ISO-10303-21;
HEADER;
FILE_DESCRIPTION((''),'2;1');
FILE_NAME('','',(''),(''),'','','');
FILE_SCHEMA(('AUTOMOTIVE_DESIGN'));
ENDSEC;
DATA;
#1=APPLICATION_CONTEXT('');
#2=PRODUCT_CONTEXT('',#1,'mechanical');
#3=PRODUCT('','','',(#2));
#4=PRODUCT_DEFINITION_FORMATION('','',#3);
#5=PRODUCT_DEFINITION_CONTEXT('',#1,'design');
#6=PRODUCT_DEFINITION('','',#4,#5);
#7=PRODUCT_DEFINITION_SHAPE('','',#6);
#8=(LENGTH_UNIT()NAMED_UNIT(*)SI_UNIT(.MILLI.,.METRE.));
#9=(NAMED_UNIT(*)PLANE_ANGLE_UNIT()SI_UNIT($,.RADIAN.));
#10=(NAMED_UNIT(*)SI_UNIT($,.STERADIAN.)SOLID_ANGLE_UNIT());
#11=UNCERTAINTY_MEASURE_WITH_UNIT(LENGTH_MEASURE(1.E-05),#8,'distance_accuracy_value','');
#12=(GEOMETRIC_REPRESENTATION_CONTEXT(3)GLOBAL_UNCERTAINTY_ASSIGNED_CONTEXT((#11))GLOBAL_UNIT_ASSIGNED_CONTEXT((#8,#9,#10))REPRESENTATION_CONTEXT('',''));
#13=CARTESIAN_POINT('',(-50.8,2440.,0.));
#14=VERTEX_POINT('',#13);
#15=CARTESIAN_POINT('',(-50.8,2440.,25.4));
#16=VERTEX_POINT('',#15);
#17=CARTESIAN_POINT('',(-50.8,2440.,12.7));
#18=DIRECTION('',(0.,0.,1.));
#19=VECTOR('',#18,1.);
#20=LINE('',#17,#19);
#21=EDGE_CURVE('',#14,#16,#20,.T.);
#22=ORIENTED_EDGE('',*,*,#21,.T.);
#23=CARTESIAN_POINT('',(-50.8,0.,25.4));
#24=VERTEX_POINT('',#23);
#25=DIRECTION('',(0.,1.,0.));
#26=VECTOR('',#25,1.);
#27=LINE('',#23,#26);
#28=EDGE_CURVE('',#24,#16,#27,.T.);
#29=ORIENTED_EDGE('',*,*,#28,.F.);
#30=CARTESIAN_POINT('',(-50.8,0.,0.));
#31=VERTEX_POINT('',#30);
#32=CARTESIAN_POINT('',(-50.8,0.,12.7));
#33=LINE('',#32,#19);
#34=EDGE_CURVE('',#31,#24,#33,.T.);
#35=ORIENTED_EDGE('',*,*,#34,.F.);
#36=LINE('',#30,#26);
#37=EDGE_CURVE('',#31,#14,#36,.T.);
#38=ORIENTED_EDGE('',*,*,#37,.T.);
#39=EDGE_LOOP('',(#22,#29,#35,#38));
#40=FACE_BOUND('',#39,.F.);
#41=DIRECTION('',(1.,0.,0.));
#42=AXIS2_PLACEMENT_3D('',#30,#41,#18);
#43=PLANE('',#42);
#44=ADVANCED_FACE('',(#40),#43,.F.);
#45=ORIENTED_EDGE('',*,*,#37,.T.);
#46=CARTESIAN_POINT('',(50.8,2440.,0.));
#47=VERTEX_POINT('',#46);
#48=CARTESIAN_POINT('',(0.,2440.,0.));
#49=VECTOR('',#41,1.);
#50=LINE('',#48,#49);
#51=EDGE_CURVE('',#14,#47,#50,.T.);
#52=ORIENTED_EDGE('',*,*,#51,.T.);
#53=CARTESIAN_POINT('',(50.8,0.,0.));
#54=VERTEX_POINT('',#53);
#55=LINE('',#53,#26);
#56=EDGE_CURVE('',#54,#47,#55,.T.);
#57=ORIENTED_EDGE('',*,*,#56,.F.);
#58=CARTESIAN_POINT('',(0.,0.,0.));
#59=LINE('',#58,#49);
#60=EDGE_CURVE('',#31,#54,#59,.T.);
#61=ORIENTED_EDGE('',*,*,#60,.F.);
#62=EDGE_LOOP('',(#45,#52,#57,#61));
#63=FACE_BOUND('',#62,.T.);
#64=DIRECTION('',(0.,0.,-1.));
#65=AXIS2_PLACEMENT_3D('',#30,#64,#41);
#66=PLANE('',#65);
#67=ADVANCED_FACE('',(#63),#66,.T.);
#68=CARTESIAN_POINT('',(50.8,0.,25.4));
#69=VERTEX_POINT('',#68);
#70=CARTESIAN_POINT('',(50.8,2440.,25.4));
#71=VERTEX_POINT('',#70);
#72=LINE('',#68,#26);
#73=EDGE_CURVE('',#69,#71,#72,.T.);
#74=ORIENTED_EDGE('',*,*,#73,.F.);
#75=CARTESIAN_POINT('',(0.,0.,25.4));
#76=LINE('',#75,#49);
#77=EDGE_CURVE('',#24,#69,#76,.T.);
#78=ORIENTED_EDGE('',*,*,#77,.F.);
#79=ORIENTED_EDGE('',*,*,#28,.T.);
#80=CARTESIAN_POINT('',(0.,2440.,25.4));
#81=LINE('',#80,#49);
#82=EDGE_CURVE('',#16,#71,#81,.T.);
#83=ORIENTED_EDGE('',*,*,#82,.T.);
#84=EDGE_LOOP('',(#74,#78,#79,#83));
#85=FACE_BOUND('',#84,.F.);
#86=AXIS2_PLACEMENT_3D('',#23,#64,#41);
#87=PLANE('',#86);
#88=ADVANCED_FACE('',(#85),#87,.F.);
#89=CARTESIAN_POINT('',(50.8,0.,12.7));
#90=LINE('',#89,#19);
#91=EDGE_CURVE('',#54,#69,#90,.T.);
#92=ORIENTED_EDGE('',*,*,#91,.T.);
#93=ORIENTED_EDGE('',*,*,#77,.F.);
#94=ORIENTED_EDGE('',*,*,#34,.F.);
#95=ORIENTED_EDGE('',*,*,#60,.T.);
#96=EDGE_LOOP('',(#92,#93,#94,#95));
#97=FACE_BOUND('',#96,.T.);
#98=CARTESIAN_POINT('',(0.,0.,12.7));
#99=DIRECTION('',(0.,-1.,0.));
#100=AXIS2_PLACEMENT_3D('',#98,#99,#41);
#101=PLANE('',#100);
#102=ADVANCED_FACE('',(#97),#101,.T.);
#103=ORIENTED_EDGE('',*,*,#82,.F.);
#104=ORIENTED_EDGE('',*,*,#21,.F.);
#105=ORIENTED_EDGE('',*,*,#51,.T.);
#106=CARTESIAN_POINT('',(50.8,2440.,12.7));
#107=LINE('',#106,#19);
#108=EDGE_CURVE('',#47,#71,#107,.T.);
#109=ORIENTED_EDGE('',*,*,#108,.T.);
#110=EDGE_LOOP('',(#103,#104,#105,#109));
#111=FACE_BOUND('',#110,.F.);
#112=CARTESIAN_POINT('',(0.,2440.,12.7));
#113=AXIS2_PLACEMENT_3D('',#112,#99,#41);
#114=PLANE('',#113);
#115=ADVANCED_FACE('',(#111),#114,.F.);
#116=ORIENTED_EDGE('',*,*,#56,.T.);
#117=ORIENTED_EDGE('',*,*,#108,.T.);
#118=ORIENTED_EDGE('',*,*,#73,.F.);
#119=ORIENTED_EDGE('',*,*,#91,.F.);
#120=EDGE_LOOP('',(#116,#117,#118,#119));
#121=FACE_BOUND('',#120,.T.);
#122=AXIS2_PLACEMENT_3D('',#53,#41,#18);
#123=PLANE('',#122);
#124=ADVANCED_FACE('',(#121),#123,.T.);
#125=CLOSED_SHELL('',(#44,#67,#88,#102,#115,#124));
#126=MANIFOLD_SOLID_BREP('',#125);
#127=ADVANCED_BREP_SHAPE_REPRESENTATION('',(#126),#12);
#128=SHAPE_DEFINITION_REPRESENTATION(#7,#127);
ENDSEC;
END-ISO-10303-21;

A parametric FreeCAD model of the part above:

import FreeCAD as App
import Part
import Sketcher
from FreeCAD import Vector
Q = App.Units.Quantity

doc = App.newDocument("Part")
body = doc.addObject("PartDesign::Body", "Body")

# Sketch on XZ plane
sketch1 = doc.addObject("Sketcher::SketchObject", "Sketch")
body.addObject(sketch1)
sketch1.AttachmentSupport = (doc.XZ_Plane, [""])
sketch1.MapMode = "FlatFace"
sketch1.addGeometry([
    Part.LineSegment(Vector(-51, 25, 0), Vector(-51, 0, 0)),
    Part.LineSegment(Vector(-51, 0, 0), Vector(51, 0, 0)),
    Part.LineSegment(Vector(51, 0, 0), Vector(51, 25, 0)),
    Part.LineSegment(Vector(51, 25, 0), Vector(-51, 25, 0)),
], False)
sketch1.addConstraint([
    Sketcher.Constraint("Coincident", 0, 2, 1, 1),
    Sketcher.Constraint("Coincident", 1, 2, 2, 1),
    Sketcher.Constraint("Coincident", 2, 2, 3, 1),
    Sketcher.Constraint("Coincident", 3, 2, 0, 1),
    Sketcher.Constraint("Vertical", 0),
    Sketcher.Constraint("Horizontal", 1),
    Sketcher.Constraint("Vertical", 2),
    Sketcher.Constraint("Horizontal", 3),
    Sketcher.Constraint("Symmetric", 0, 2, 1, 2, -1, 1),
    Sketcher.Constraint("DistanceX", 1, 1, 1, 2, Q("4 in")),
    Sketcher.Constraint("DistanceY", 0, 2, 0, 1, Q("1 in")),
])
pad1 = doc.addObject("PartDesign::Pad", "Pad")
body.addObject(pad1)
pad1.Profile = sketch1
pad1.Length = 2440
pad1.Reversed = True

doc.recompute()
